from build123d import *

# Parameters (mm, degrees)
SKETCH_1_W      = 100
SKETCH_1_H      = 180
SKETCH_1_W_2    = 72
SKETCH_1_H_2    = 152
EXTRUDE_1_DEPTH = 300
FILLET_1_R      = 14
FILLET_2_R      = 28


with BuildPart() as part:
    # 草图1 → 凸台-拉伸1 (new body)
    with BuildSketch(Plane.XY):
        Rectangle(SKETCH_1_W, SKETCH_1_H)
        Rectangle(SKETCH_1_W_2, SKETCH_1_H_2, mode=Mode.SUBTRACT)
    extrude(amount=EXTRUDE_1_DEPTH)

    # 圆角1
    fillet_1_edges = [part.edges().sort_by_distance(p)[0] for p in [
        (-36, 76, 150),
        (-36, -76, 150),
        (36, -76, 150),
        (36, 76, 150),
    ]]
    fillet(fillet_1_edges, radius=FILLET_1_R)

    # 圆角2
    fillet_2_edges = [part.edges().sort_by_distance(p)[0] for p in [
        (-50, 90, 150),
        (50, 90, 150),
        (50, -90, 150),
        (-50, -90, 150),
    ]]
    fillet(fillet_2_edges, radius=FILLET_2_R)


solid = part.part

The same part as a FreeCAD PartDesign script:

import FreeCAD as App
import Part
import Sketcher
Q = App.Units.Quantity


def edges_at(feature, points):
    """Names of the edges that pass closest to the given points."""
    edges = feature.Shape.Edges
    near = lambda p: min(range(len(edges)), key=lambda i: edges[i].distToShape(Part.Vertex(*p))[0])
    return sorted({f"Edge{near(p) + 1}" for p in points})

doc = App.newDocument("Part")
body = doc.addObject("PartDesign::Body", "Body")

# Sketch on XY plane
sketch1 = doc.addObject("Sketcher::SketchObject", "Sketch")
body.addObject(sketch1)
sketch1.AttachmentSupport = (doc.XY_Plane, [""])
sketch1.MapMode = "FlatFace"
sketch1.addGeometry([
    Part.LineSegment(App.Vector(-50, 90, 0), App.Vector(-50, -90, 0)),  # 0
    Part.LineSegment(App.Vector(-50, -90, 0), App.Vector(50, -90, 0)),  # 1
    Part.LineSegment(App.Vector(50, -90, 0), App.Vector(50, 90, 0)),  # 2
    Part.LineSegment(App.Vector(50, 90, 0), App.Vector(-50, 90, 0)),  # 3
    Part.LineSegment(App.Vector(36, -76, 0), App.Vector(-36, -76, 0)),  # 4
    Part.LineSegment(App.Vector(-36, -76, 0), App.Vector(-36, 76, 0)),  # 5
    Part.LineSegment(App.Vector(-36, 76, 0), App.Vector(36, 76, 0)),  # 6
    Part.LineSegment(App.Vector(36, 76, 0), App.Vector(36, -76, 0)),  # 7
], False)
sketch1.addConstraint([
    Sketcher.Constraint("Coincident", 0, 2, 1, 1),
    Sketcher.Constraint("Coincident", 1, 2, 2, 1),
    Sketcher.Constraint("Coincident", 2, 2, 3, 1),
    Sketcher.Constraint("Coincident", 3, 2, 0, 1),
    Sketcher.Constraint("Coincident", 4, 2, 5, 1),
    Sketcher.Constraint("Coincident", 5, 2, 6, 1),
    Sketcher.Constraint("Coincident", 6, 2, 7, 1),
    Sketcher.Constraint("Coincident", 7, 2, 4, 1),
    Sketcher.Constraint("Vertical", 0),
    Sketcher.Constraint("Horizontal", 1),
    Sketcher.Constraint("Vertical", 2),
    Sketcher.Constraint("Horizontal", 3),
    Sketcher.Constraint("Horizontal", 4),
    Sketcher.Constraint("Vertical", 5),
    Sketcher.Constraint("Horizontal", 6),
    Sketcher.Constraint("Vertical", 7),
    Sketcher.Constraint("Symmetric", 0, 2, 2, 2, -1, 1),
    Sketcher.Constraint("Symmetric", 4, 2, 6, 2, -1, 1),
    Sketcher.Constraint("DistanceX", 1, 1, 1, 2, Q("100 mm")),
    Sketcher.Constraint("DistanceX", 4, 2, 4, 1, Q("72 mm")),
    Sketcher.Constraint("DistanceY", 0, 2, 0, 1, Q("180 mm")),
    Sketcher.Constraint("DistanceY", 5, 1, 5, 2, Q("152 mm")),
])
pad1 = doc.addObject("PartDesign::Pad", "Pad")
body.addObject(pad1)
pad1.Profile = sketch1
pad1.Length = 300
doc.recompute()

fillet = doc.addObject("PartDesign::Fillet", "Fillet")
body.addObject(fillet)
fillet.Base = (pad1, edges_at(pad1, [
    (-36, 76, 150),
    (-36, -76, 150),
    (36, -76, 150),
    (36, 76, 150),
]))
fillet.Radius = 14
doc.recompute()

fillet2 = doc.addObject("PartDesign::Fillet", "Fillet001")
body.addObject(fillet2)
fillet2.Base = (fillet, edges_at(fillet, [
    (-50, 90, 150),
    (50, 90, 150),
    (50, -90, 150),
    (-50, -90, 150),
]))
fillet2.Radius = 28

doc.recompute()
